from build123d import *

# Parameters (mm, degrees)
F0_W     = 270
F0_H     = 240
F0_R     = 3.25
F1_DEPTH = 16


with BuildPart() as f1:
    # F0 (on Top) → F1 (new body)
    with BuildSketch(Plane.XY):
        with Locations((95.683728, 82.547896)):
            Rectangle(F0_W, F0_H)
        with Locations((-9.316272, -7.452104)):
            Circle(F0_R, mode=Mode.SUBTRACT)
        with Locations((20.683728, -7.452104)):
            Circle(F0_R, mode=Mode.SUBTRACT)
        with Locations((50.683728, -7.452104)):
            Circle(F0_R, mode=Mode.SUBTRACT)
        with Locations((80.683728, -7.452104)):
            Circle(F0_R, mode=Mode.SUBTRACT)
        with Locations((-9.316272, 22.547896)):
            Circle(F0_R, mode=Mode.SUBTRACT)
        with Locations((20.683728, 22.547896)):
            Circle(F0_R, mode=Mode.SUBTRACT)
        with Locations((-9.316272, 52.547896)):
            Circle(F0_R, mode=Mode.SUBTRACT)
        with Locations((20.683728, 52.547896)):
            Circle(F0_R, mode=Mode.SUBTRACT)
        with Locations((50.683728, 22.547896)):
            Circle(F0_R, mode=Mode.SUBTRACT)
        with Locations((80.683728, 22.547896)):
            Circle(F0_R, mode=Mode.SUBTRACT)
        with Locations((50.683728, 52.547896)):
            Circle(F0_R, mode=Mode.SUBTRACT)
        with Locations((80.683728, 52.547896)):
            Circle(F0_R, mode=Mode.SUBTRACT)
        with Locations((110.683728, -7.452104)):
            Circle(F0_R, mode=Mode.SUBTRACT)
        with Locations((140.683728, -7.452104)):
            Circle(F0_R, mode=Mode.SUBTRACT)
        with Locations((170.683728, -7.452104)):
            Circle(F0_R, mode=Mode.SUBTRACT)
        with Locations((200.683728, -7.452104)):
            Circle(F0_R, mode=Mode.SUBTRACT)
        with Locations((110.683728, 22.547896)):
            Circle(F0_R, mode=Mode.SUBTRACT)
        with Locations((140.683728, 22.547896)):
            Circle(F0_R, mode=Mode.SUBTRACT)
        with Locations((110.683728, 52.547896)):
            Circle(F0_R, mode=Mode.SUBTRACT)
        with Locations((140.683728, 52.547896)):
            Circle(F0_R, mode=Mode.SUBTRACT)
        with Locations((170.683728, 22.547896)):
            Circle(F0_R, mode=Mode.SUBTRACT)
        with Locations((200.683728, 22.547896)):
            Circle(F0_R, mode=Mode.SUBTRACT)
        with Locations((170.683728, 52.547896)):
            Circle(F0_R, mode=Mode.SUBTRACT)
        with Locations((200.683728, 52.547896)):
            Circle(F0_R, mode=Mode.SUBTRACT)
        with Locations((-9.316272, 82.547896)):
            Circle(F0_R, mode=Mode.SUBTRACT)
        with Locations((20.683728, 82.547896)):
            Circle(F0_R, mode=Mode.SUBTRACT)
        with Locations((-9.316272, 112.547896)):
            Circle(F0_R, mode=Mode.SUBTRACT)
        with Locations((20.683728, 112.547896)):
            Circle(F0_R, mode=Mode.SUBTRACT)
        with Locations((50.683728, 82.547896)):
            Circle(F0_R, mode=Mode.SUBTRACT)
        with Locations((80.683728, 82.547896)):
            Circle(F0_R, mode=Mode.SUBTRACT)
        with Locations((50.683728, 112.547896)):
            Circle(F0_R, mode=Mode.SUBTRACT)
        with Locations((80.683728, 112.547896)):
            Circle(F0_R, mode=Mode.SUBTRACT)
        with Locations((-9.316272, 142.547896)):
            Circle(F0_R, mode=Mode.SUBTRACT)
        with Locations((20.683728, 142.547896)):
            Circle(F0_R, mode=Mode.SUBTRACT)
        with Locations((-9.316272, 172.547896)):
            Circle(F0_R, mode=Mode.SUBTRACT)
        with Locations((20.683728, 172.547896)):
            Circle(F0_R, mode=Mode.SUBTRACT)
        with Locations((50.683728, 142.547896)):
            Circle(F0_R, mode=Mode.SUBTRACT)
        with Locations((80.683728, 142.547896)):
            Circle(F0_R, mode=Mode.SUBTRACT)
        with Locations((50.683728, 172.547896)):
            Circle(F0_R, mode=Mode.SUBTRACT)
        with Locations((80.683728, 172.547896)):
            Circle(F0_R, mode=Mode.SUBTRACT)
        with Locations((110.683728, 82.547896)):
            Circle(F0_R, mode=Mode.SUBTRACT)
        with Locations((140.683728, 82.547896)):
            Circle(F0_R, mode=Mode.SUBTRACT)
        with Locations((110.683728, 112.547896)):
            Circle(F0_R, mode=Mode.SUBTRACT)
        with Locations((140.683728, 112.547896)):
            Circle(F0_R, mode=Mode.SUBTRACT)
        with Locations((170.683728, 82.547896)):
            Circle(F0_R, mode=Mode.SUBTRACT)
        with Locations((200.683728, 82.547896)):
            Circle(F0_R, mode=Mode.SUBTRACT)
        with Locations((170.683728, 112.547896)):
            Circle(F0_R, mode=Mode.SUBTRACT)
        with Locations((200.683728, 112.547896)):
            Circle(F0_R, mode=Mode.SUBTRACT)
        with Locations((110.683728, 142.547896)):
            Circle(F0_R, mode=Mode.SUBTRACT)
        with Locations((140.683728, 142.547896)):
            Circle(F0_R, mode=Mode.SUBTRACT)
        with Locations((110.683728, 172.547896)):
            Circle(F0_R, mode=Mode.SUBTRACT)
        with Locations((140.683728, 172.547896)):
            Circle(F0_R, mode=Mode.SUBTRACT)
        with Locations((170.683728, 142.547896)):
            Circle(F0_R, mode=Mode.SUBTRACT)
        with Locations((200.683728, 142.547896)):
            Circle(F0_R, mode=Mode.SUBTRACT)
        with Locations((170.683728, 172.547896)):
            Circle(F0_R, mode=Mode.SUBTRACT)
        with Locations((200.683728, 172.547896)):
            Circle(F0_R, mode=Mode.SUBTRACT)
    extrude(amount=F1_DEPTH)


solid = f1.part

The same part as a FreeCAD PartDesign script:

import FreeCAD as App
import Part
import Sketcher

V = App.Vector

doc = App.newDocument("Part")
body = doc.addObject("PartDesign::Body", "Body")

# Sketch on XY plane
sketch1 = body.newObject("Sketcher::SketchObject", "Sketch")
sketch1.AttachmentSupport = (doc.getObject("XY_Plane"), [""])
sketch1.MapMode = "FlatFace"
sketch1.addGeometry([
    Part.LineSegment(V(-39.3, 202.5, 0), V(-39.3, -37.5, 0)),  # 0
    Part.LineSegment(V(-39.3, -37.5, 0), V(230.7, -37.5, 0)),  # 1
    Part.LineSegment(V(230.7, -37.5, 0), V(230.7, 202.5, 0)),  # 2
    Part.LineSegment(V(230.7, 202.5, 0), V(-39.3, 202.5, 0)),  # 3
    Part.Circle(V(-9.3, -7.5, 0), V(0, 0, 1), 3.2),  # 4
    Part.Circle(V(20.7, -7.5, 0), V(0, 0, 1), 3.2),  # 5
    Part.Circle(V(-9.3, 22.5, 0), V(0, 0, 1), 3.2),  # 6
    Part.Circle(V(20.7, 22.5, 0), V(0, 0, 1), 3.2),  # 7
    Part.Circle(V(50.7, -7.5, 0), V(0, 0, 1), 3.2),  # 8
    Part.Circle(V(80.7, -7.5, 0), V(0, 0, 1), 3.2),  # 9
    Part.Circle(V(50.7, 22.5, 0), V(0, 0, 1), 3.2),  # 10
    Part.Circle(V(80.7, 22.5, 0), V(0, 0, 1), 3.2),  # 11
    Part.Circle(V(-9.3, 52.5, 0), V(0, 0, 1), 3.2),  # 12
    Part.Circle(V(20.7, 52.5, 0), V(0, 0, 1), 3.2),  # 13
    Part.Circle(V(50.7, 52.5, 0), V(0, 0, 1), 3.2),  # 14
    Part.Circle(V(80.7, 52.5, 0), V(0, 0, 1), 3.2),  # 15
    Part.Circle(V(110.7, -7.5, 0), V(0, 0, 1), 3.2),  # 16
    Part.Circle(V(140.7, -7.5, 0), V(0, 0, 1), 3.2),  # 17
    Part.Circle(V(110.7, 22.5, 0), V(0, 0, 1), 3.2),  # 18
    Part.Circle(V(140.7, 22.5, 0), V(0, 0, 1), 3.2),  # 19
    Part.Circle(V(170.7, -7.5, 0), V(0, 0, 1), 3.2),  # 20
    Part.Circle(V(200.7, -7.5, 0), V(0, 0, 1), 3.2),  # 21
    Part.Circle(V(170.7, 22.5, 0), V(0, 0, 1), 3.2),  # 22
    Part.Circle(V(200.7, 22.5, 0), V(0, 0, 1), 3.2),  # 23
    Part.Circle(V(110.7, 52.5, 0), V(0, 0, 1), 3.2),  # 24
    Part.Circle(V(140.7, 52.5, 0), V(0, 0, 1), 3.2),  # 25
    Part.Circle(V(170.7, 52.5, 0), V(0, 0, 1), 3.2),  # 26
    Part.Circle(V(200.7, 52.5, 0), V(0, 0, 1), 3.2),  # 27
    Part.Circle(V(-9.3, 82.5, 0), V(0, 0, 1), 3.2),  # 28
    Part.Circle(V(20.7, 82.5, 0), V(0, 0, 1), 3.2),  # 29
    Part.Circle(V(-9.3, 112.5, 0), V(0, 0, 1), 3.2),  # 30
    Part.Circle(V(20.7, 112.5, 0), V(0, 0, 1), 3.2),  # 31
    Part.Circle(V(50.7, 82.5, 0), V(0, 0, 1), 3.2),  # 32
    Part.Circle(V(80.7, 82.5, 0), V(0, 0, 1), 3.2),  # 33
    Part.Circle(V(50.7, 112.5, 0), V(0, 0, 1), 3.2),  # 34
    Part.Circle(V(80.7, 112.5, 0), V(0, 0, 1), 3.2),  # 35
    Part.Circle(V(-9.3, 142.5, 0), V(0, 0, 1), 3.2),  # 36
    Part.Circle(V(20.7, 142.5, 0), V(0, 0, 1), 3.2),  # 37
    Part.Circle(V(-9.3, 172.5, 0), V(0, 0, 1), 3.2),  # 38
    Part.Circle(V(20.7, 172.5, 0), V(0, 0, 1), 3.2),  # 39
    Part.Circle(V(50.7, 142.5, 0), V(0, 0, 1), 3.2),  # 40
    Part.Circle(V(80.7, 142.5, 0), V(0, 0, 1), 3.2),  # 41
    Part.Circle(V(50.7, 172.5, 0), V(0, 0, 1), 3.2),  # 42
    Part.Circle(V(80.7, 172.5, 0), V(0, 0, 1), 3.2),  # 43
    Part.Circle(V(110.7, 82.5, 0), V(0, 0, 1), 3.2),  # 44
    Part.Circle(V(140.7, 82.5, 0), V(0, 0, 1), 3.2),  # 45
    Part.Circle(V(110.7, 112.5, 0), V(0, 0, 1), 3.2),  # 46
    Part.Circle(V(140.7, 112.5, 0), V(0, 0, 1), 3.2),  # 47
    Part.Circle(V(170.7, 82.5, 0), V(0, 0, 1), 3.2),  # 48
    Part.Circle(V(200.7, 82.5, 0), V(0, 0, 1), 3.2),  # 49
    Part.Circle(V(170.7, 112.5, 0), V(0, 0, 1), 3.2),  # 50
    Part.Circle(V(200.7, 112.5, 0), V(0, 0, 1), 3.2),  # 51
    Part.Circle(V(110.7, 142.5, 0), V(0, 0, 1), 3.2),  # 52
    Part.Circle(V(140.7, 142.5, 0), V(0, 0, 1), 3.2),  # 53
    Part.Circle(V(110.7, 172.5, 0), V(0, 0, 1), 3.2),  # 54
    Part.Circle(V(140.7, 172.5, 0), V(0, 0, 1), 3.2),  # 55
    Part.Circle(V(170.7, 142.5, 0), V(0, 0, 1), 3.2),  # 56
    Part.Circle(V(200.7, 142.5, 0), V(0, 0, 1), 3.2),  # 57
    Part.Circle(V(170.7, 172.5, 0), V(0, 0, 1), 3.2),  # 58
    Part.Circle(V(200.7, 172.5, 0), V(0, 0, 1), 3.2),  # 59
], False)
sketch1.addConstraint([
    Sketcher.Constraint("Coincident", 0, 2, 1, 1),
    Sketcher.Constraint("Coincident", 1, 2, 2, 1),
    Sketcher.Constraint("Coincident", 2, 2, 3, 1),
    Sketcher.Constraint("Coincident", 3, 2, 0, 1),
    Sketcher.Constraint("Vertical", 0),
    Sketcher.Constraint("Horizontal", 1),
    Sketcher.Constraint("Vertical", 2),
    Sketcher.Constraint("Horizontal", 3),
    Sketcher.Constraint("Equal", 4, 5),
    Sketcher.Constraint("Equal", 5, 6),
    Sketcher.Constraint("Equal", 6, 7),
    Sketcher.Constraint("Equal", 7, 8),
    Sketcher.Constraint("Equal", 8, 9),
    Sketcher.Constraint("Equal", 9, 10),
    Sketcher.Constraint("Equal", 10, 11),
    Sketcher.Constraint("Equal", 11, 12),
    Sketcher.Constraint("Equal", 12, 13),
    Sketcher.Constraint("Equal", 13, 14),
    Sketcher.Constraint("Equal", 14, 15),
    Sketcher.Constraint("Equal", 15, 16),
    Sketcher.Constraint("Equal", 16, 17),
    Sketcher.Constraint("Equal", 17, 18),
    Sketcher.Constraint("Equal", 18, 19),
    Sketcher.Constraint("Equal", 19, 20),
    Sketcher.Constraint("Equal", 20, 21),
    Sketcher.Constraint("Equal", 21, 22),
    Sketcher.Constraint("Equal", 22, 23),
    Sketcher.Constraint("Equal", 23, 24),
    Sketcher.Constraint("Equal", 24, 25),
    Sketcher.Constraint("Equal", 25, 26),
    Sketcher.Constraint("Equal", 26, 27),
    Sketcher.Constraint("Equal", 27, 28),
    Sketcher.Constraint("Equal", 28, 29),
    Sketcher.Constraint("Equal", 29, 30),
    Sketcher.Constraint("Equal", 30, 31),
    Sketcher.Constraint("Equal", 31, 32),
    Sketcher.Constraint("Equal", 32, 33),
    Sketcher.Constraint("Equal", 33, 34),
    Sketcher.Constraint("Equal", 34, 35),
    Sketcher.Constraint("Equal", 35, 36),
    Sketcher.Constraint("Equal", 36, 37),
    Sketcher.Constraint("Equal", 37, 38),
    Sketcher.Constraint("Equal", 38, 39),
    Sketcher.Constraint("Equal", 39, 40),
    Sketcher.Constraint("Equal", 40, 41),
    Sketcher.Constraint("Equal", 41, 42),
    Sketcher.Constraint("Equal", 42, 43),
    Sketcher.Constraint("Equal", 43, 44),
    Sketcher.Constraint("Equal", 44, 45),
    Sketcher.Constraint("Equal", 45, 46),
    Sketcher.Constraint("Equal", 46, 47),
    Sketcher.Constraint("Equal", 47, 48),
    Sketcher.Constraint("Equal", 48, 49),
    Sketcher.Constraint("Equal", 49, 50),
    Sketcher.Constraint("Equal", 50, 51),
    Sketcher.Constraint("Equal", 51, 52),
    Sketcher.Constraint("Equal", 52, 53),
    Sketcher.Constraint("Equal", 53, 54),
    Sketcher.Constraint("Equal", 54, 55),
    Sketcher.Constraint("Equal", 55, 56),
    Sketcher.Constraint("Equal", 56, 57),
    Sketcher.Constraint("Equal", 57, 58),
    Sketcher.Constraint("Equal", 58, 59),
    Sketcher.Constraint("Horizontal", 4, 3, 5, 3),
    Sketcher.Constraint("Horizontal", 6, 3, 7, 3),
    Sketcher.Constraint("Horizontal", 5, 3, 8, 3),
    Sketcher.Constraint("Horizontal", 8, 3, 9, 3),
    Sketcher.Constraint("Horizontal", 7, 3, 10, 3),
    Sketcher.Constraint("Horizontal", 10, 3, 11, 3),
    Sketcher.Constraint("Horizontal", 12, 3, 13, 3),
    Sketcher.Constraint("Horizontal", 13, 3, 14, 3),
    Sketcher.Constraint("Horizontal", 14, 3, 15, 3),
    Sketcher.Constraint("Horizontal", 9, 3, 16, 3),
    Sketcher.Constraint("Horizontal", 16, 3, 17, 3),
    Sketcher.Constraint("Horizontal", 11, 3, 18, 3),
    Sketcher.Constraint("Horizontal", 18, 3, 19, 3),
    Sketcher.Constraint("Horizontal", 17, 3, 20, 3),
    Sketcher.Constraint("Horizontal", 20, 3, 21, 3),
    Sketcher.Constraint("Horizontal", 19, 3, 22, 3),
    Sketcher.Constraint("Horizontal", 22, 3, 23, 3),
    Sketcher.Constraint("Horizontal", 15, 3, 24, 3),
    Sketcher.Constraint("Horizontal", 24, 3, 25, 3),
    Sketcher.Constraint("Horizontal", 25, 3, 26, 3),
    Sketcher.Constraint("Horizontal", 26, 3, 27, 3),
    Sketcher.Constraint("Horizontal", 28, 3, 29, 3),
    Sketcher.Constraint("Horizontal", 30, 3, 31, 3),
    Sketcher.Constraint("Horizontal", 29, 3, 32, 3),
    Sketcher.Constraint("Horizontal", 32, 3, 33, 3),
    Sketcher.Constraint("Horizontal", 31, 3, 34, 3),
    Sketcher.Constraint("Horizontal", 34, 3, 35, 3),
    Sketcher.Constraint("Horizontal", 36, 3, 37, 3),
    Sketcher.Constraint("Horizontal", 38, 3, 39, 3),
    Sketcher.Constraint("Horizontal", 37, 3, 40, 3),
    Sketcher.Constraint("Horizontal", 40, 3, 41, 3),
    Sketcher.Constraint("Horizontal", 39, 3, 42, 3),
    Sketcher.Constraint("Horizontal", 42, 3, 43, 3),
    Sketcher.Constraint("Horizontal", 33, 3, 44, 3),
    Sketcher.Constraint("Horizontal", 44, 3, 45, 3),
    Sketcher.Constraint("Horizontal", 35, 3, 46, 3),
    Sketcher.Constraint("Horizontal", 46, 3, 47, 3),
    Sketcher.Constraint("Horizontal", 45, 3, 48, 3),
    Sketcher.Constraint("Horizontal", 48, 3, 49, 3),
    Sketcher.Constraint("Horizontal", 47, 3, 50, 3),
    Sketcher.Constraint("Horizontal", 50, 3, 51, 3),
    Sketcher.Constraint("Horizontal", 41, 3, 52, 3),
    Sketcher.Constraint("Horizontal", 52, 3, 53, 3),
    Sketcher.Constraint("Horizontal", 43, 3, 54, 3),
    Sketcher.Constraint("Horizontal", 54, 3, 55, 3),
    Sketcher.Constraint("Horizontal", 53, 3, 56, 3),
    Sketcher.Constraint("Horizontal", 56, 3, 57, 3),
    Sketcher.Constraint("Horizontal", 55, 3, 58, 3),
    Sketcher.Constraint("Horizontal", 58, 3, 59, 3),
    Sketcher.Constraint("Vertical", 4, 3, 6, 3),
    Sketcher.Constraint("Vertical", 5, 3, 7, 3),
    Sketcher.Constraint("Vertical", 8, 3, 10, 3),
    Sketcher.Constraint("Vertical", 9, 3, 11, 3),
    Sketcher.Constraint("Vertical", 6, 3, 12, 3),
    Sketcher.Constraint("Vertical", 7, 3, 13, 3),
    Sketcher.Constraint("Vertical", 10, 3, 14, 3),
    Sketcher.Constraint("Vertical", 11, 3, 15, 3),
    Sketcher.Constraint("Vertical", 16, 3, 18, 3),
    Sketcher.Constraint("Vertical", 17, 3, 19, 3),
    Sketcher.Constraint("Vertical", 20, 3, 22, 3),
    Sketcher.Constraint("Vertical", 21, 3, 23, 3),
    Sketcher.Constraint("Vertical", 18, 3, 24, 3),
    Sketcher.Constraint("Vertical", 19, 3, 25, 3),
    Sketcher.Constraint("Vertical", 22, 3, 26, 3),
    Sketcher.Constraint("Vertical", 23, 3, 27, 3),
    Sketcher.Constraint("Vertical", 12, 3, 28, 3),
    Sketcher.Constraint("Vertical", 13, 3, 29, 3),
    Sketcher.Constraint("Vertical", 28, 3, 30, 3),
    Sketcher.Constraint("Vertical", 29, 3, 31, 3),
    Sketcher.Constraint("Vertical", 14, 3, 32, 3),
    Sketcher.Constraint("Vertical", 15, 3, 33, 3),
    Sketcher.Constraint("Vertical", 32, 3, 34, 3),
    Sketcher.Constraint("Vertical", 33, 3, 35, 3),
    Sketcher.Constraint("Vertical", 30, 3, 36, 3),
    Sketcher.Constraint("Vertical", 31, 3, 37, 3),
    Sketcher.Constraint("Vertical", 36, 3, 38, 3),
    Sketcher.Constraint("Vertical", 37, 3, 39, 3),
    Sketcher.Constraint("Vertical", 34, 3, 40, 3),
    Sketcher.Constraint("Vertical", 35, 3, 41, 3),
    Sketcher.Constraint("Vertical", 40, 3, 42, 3),
    Sketcher.Constraint("Vertical", 41, 3, 43, 3),
    Sketcher.Constraint("Vertical", 24, 3, 44, 3),
    Sketcher.Constraint("Vertical", 25, 3, 45, 3),
    Sketcher.Constraint("Vertical", 44, 3, 46, 3),
    Sketcher.Constraint("Vertical", 45, 3, 47, 3),
    Sketcher.Constraint("Vertical", 26, 3, 48, 3),
    Sketcher.Constraint("Vertical", 27, 3, 49, 3),
    Sketcher.Constraint("Vertical", 48, 3, 50, 3),
    Sketcher.Constraint("Vertical", 49, 3, 51, 3),
    Sketcher.Constraint("Vertical", 46, 3, 52, 3),
    Sketcher.Constraint("Vertical", 47, 3, 53, 3),
    Sketcher.Constraint("Vertical", 52, 3, 54, 3),
    Sketcher.Constraint("Vertical", 53, 3, 55, 3),
    Sketcher.Constraint("Vertical", 50, 3, 56, 3),
    Sketcher.Constraint("Vertical", 51, 3, 57, 3),
    Sketcher.Constraint("Vertical", 56, 3, 58, 3),
    Sketcher.Constraint("Vertical", 57, 3, 59, 3),
    Sketcher.Constraint("Diameter", 4, 6.5),
    Sketcher.Constraint("DistanceX", 1, 1, 1, 2, 270.0),
    Sketcher.Constraint("DistanceY", 0, 2, 0, 1, 240.0),
    Sketcher.Constraint("DistanceX", 4, 3, 5, 3, 30.0),
    Sketcher.Constraint("DistanceY", 4, 3, 6, 3, 30.0),
    Sketcher.Constraint("DistanceX", 5, 3, 8, 3, 30.0),
    Sketcher.Constraint("DistanceX", 8, 3, 9, 3, 30.0),
    Sketcher.Constraint("DistanceY", 6, 3, 12, 3, 30.0),
    Sketcher.Constraint("DistanceX", 9, 3, 16, 3, 30.0),
    Sketcher.Constraint("DistanceX", 16, 3, 17, 3, 30.0),
    Sketcher.Constraint("DistanceX", 17, 3, 20, 3, 30.0),
    Sketcher.Constraint("DistanceX", 20, 3, 21, 3, 30.0),
    Sketcher.Constraint("DistanceY", 12, 3, 28, 3, 30.0),
    Sketcher.Constraint("DistanceY", 28, 3, 30, 3, 30.0),
    Sketcher.Constraint("DistanceY", 30, 3, 36, 3, 30.0),
    Sketcher.Constraint("DistanceY", 36, 3, 38, 3, 30.0),
    Sketcher.Constraint("DistanceX", 0, 2, 4, 3, 30.0),
    Sketcher.Constraint("DistanceY", 0, 2, 4, 3, 30.0),
    Sketcher.Constraint("DistanceX", -1, 1, 8, 3, 50.683728),
    Sketcher.Constraint("DistanceY", 4, 3, -1, 1, 7.452104),
])
pad1 = body.newObject("PartDesign::Pad", "Pad")
pad1.Profile = sketch1
pad1.Length = 16

doc.recompute()
